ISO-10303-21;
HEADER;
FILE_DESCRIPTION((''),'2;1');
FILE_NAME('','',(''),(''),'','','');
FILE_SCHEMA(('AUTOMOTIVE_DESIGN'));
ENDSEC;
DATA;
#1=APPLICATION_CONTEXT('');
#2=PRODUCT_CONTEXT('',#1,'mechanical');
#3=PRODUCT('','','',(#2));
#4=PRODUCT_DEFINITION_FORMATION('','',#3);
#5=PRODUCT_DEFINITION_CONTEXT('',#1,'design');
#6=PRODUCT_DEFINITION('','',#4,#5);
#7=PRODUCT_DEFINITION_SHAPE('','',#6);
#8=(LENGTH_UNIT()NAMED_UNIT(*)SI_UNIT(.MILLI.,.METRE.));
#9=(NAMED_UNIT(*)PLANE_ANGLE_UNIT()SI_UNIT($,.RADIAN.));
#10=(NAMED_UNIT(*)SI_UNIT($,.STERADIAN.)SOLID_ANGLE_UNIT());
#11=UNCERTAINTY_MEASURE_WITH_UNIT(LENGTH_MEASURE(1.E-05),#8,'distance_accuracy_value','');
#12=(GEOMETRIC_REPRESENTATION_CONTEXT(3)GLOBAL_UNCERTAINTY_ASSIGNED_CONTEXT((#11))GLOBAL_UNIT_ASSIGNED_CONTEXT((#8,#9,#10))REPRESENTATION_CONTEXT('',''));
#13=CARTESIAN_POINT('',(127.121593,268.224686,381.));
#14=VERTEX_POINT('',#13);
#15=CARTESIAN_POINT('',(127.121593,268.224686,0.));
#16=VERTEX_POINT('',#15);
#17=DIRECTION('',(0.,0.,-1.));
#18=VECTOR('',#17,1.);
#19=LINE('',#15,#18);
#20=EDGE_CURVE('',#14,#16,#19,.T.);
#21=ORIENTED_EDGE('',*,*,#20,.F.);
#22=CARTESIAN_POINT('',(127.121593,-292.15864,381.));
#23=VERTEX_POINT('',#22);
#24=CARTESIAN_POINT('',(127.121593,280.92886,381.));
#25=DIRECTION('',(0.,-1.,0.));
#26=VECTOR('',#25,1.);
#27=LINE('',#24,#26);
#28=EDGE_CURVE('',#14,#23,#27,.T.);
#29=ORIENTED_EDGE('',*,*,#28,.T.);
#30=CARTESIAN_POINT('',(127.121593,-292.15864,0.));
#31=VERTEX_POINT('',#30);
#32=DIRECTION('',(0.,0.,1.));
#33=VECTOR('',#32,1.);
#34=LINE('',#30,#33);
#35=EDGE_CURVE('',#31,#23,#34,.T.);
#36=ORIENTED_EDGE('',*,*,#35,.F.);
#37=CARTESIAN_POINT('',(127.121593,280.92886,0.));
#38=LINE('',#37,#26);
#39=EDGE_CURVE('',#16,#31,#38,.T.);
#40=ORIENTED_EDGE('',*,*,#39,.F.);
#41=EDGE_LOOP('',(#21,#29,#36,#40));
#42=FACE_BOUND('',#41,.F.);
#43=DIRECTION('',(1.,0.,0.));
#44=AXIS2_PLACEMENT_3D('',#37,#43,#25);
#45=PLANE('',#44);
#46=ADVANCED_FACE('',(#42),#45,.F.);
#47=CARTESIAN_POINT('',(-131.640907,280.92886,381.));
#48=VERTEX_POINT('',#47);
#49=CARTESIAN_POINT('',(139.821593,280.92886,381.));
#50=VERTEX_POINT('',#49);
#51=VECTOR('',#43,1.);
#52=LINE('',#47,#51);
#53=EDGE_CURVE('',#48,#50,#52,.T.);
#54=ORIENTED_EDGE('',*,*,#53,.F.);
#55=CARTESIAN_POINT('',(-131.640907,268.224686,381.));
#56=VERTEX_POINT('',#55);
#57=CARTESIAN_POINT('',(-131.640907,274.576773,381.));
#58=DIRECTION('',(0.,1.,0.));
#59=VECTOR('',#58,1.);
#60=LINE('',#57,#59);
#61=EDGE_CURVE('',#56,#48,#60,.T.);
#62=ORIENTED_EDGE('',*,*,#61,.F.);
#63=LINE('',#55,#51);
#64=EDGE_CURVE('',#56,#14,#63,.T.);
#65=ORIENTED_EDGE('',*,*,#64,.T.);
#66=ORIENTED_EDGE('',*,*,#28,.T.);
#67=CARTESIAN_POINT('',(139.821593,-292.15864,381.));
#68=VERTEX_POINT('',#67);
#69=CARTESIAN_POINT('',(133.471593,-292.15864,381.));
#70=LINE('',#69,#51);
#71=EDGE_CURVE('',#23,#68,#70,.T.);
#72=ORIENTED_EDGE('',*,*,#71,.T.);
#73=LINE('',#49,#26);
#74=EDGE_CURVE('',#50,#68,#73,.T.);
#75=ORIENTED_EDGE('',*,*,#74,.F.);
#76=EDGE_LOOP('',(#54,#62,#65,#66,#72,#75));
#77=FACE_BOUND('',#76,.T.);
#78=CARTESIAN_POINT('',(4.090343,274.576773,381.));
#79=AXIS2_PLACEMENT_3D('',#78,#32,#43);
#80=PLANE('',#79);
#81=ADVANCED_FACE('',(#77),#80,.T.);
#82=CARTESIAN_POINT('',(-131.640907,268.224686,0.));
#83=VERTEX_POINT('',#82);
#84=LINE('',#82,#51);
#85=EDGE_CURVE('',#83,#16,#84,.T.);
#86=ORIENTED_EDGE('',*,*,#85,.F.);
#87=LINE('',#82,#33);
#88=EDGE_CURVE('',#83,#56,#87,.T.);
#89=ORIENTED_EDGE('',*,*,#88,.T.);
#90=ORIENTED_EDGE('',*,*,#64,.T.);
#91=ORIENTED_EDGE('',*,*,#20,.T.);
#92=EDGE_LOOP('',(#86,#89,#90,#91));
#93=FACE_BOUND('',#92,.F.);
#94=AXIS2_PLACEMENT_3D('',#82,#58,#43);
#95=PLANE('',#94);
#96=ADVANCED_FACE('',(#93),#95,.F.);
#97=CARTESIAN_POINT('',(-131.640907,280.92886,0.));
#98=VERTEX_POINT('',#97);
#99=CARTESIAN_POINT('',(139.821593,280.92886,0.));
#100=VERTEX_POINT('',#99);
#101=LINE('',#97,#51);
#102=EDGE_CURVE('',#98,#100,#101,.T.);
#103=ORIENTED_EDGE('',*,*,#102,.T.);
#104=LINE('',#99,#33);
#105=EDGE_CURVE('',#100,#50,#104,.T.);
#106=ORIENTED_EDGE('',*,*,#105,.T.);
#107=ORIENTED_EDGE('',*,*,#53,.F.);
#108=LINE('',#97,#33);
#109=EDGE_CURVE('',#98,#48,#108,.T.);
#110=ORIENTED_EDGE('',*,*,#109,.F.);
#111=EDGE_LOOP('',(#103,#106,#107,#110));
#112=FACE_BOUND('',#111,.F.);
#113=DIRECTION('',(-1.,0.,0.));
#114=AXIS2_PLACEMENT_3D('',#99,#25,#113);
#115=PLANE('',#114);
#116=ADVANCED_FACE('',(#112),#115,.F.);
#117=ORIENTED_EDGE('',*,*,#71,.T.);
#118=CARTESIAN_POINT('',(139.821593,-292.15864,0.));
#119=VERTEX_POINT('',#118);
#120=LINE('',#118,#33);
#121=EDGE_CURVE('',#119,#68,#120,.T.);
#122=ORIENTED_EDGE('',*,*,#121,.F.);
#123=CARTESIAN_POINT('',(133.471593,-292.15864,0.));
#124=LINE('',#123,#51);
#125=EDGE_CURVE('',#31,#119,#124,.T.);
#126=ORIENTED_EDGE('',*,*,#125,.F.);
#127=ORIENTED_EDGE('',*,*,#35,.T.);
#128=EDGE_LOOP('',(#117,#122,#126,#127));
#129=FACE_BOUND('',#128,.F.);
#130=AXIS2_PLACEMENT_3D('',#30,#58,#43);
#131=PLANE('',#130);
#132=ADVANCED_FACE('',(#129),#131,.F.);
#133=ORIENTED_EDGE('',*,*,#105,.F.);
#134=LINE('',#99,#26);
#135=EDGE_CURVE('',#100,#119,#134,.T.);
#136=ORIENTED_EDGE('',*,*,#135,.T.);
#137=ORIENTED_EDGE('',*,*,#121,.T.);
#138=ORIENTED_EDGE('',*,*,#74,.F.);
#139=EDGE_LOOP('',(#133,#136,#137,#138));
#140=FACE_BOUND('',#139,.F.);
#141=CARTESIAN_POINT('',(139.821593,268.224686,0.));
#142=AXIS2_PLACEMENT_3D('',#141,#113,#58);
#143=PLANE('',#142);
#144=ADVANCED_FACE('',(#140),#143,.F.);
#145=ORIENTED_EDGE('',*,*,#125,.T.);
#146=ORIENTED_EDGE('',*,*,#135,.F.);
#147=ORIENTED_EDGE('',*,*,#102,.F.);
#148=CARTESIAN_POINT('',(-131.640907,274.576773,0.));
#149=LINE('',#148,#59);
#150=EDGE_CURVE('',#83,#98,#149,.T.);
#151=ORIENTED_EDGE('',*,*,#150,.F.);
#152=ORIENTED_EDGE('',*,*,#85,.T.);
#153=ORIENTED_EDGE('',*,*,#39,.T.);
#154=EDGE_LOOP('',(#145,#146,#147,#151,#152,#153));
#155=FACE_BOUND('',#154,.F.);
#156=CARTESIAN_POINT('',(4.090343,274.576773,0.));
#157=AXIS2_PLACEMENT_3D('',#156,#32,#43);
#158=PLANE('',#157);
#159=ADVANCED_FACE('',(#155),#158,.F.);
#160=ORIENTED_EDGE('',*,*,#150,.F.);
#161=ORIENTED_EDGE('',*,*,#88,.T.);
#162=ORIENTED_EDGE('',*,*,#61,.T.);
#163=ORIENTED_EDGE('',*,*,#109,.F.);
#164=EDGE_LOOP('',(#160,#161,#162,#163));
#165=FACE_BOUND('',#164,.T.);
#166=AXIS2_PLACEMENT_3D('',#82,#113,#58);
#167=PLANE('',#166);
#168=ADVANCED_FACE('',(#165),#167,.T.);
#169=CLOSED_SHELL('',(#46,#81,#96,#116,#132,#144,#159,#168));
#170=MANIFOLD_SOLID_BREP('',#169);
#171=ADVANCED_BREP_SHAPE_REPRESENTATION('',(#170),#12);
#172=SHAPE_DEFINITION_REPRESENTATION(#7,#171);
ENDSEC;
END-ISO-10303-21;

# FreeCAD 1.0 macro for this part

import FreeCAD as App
import Part
import Sketcher

V = App.Vector
Q = App.Units.Quantity

doc = App.newDocument("Part")
body = doc.addObject("PartDesign::Body", "Body")

# Sketch on XY plane
sketch1 = body.newObject("Sketcher::SketchObject", "Sketch")
sketch1.AttachmentSupport = (doc.getObject("XY_Plane"), [""])
sketch1.MapMode = "FlatFace"
sketch1.addGeometry(Part.LineSegment(V(-132, 281, 0), V(-132, 268, 0)), False)
sketch1.addGeometry(Part.LineSegment(V(-132, 268, 0), V(140, 268, 0)), False)
sketch1.addGeometry(Part.LineSegment(V(140, 268, 0), V(140, 281, 0)), False)
sketch1.addGeometry(Part.LineSegment(V(140, 281, 0), V(-132, 281, 0)), False)
sketch1.addConstraint(Sketcher.Constraint("Coincident", 0, 2, 1, 1))
sketch1.addConstraint(Sketcher.Constraint("Coincident", 1, 2, 2, 1))
sketch1.addConstraint(Sketcher.Constraint("Coincident", 2, 2, 3, 1))
sketch1.addConstraint(Sketcher.Constraint("Coincident", 3, 2, 0, 1))
sketch1.addConstraint(Sketcher.Constraint("Vertical", 0))
sketch1.addConstraint(Sketcher.Constraint("Horizontal", 1))
sketch1.addConstraint(Sketcher.Constraint("Vertical", 2))
sketch1.addConstraint(Sketcher.Constraint("Horizontal", 3))
sketch1.addConstraint(Sketcher.Constraint("DistanceX", 1, 1, 1, 2, Q("10.6875 in")))
sketch1.addConstraint(Sketcher.Constraint("DistanceY", 0, 2, 0, 1, 12.704174))
sketch1.addConstraint(Sketcher.Constraint("DistanceY", -1, 1, 2, 2, 280.92886))
sketch1.addConstraint(Sketcher.Constraint("DistanceX", 0, 2, -1, 1, 131.640907))
pad1 = body.newObject("PartDesign::Pad", "Pad")
pad1.Profile = sketch1
pad1.Length = Q("15 in")

# Sketch on XY plane
sketch2 = body.newObject("Sketcher::SketchObject", "Sketch001")
sketch2.AttachmentSupport = (doc.getObject("XY_Plane"), [""])
sketch2.MapMode = "FlatFace"
sketch2.addGeometry(Part.LineSegment(V(127, 281, 0), V(127, -292, 0)), False)
sketch2.addGeometry(Part.LineSegment(V(127, -292, 0), V(140, -292, 0)), False)
sketch2.addGeometry(Part.LineSegment(V(140, -292, 0), V(140, 281, 0)), False)
sketch2.addGeometry(Part.LineSegment(V(140, 281, 0), V(127, 281, 0)), False)
sketch2.addConstraint(Sketcher.Constraint("Coincident", 0, 2, 1, 1))
sketch2.addConstraint(Sketcher.Constraint("Coincident", 1, 2, 2, 1))
sketch2.addConstraint(Sketcher.Constraint("Coincident", 2, 2, 3, 1))
sketch2.addConstraint(Sketcher.Constraint("Coincident", 3, 2, 0, 1))
sketch2.addConstraint(Sketcher.Constraint("Vertical", 0))
sketch2.addConstraint(Sketcher.Constraint("Horizontal", 1))
sketch2.addConstraint(Sketcher.Constraint("Vertical", 2))
sketch2.addConstraint(Sketcher.Constraint("Horizontal", 3))
sketch2.addConstraint(Sketcher.Constraint("DistanceX", 1, 1, 1, 2, Q("0.5 in")))
sketch2.addConstraint(Sketcher.Constraint("DistanceY", 0, 2, 0, 1, Q("22.5625 in")))
sketch2.addConstraint(Sketcher.Constraint("DistanceY", 0, 2, -1, 1, 292.15864))
sketch2.addConstraint(Sketcher.Constraint("DistanceX", -1, 1, 0, 2, 127.121593))
pad2 = body.newObject("PartDesign::Pad", "Pad001")
pad2.Profile = sketch2
pad2.Length = Q("15 in")

doc.recompute()
